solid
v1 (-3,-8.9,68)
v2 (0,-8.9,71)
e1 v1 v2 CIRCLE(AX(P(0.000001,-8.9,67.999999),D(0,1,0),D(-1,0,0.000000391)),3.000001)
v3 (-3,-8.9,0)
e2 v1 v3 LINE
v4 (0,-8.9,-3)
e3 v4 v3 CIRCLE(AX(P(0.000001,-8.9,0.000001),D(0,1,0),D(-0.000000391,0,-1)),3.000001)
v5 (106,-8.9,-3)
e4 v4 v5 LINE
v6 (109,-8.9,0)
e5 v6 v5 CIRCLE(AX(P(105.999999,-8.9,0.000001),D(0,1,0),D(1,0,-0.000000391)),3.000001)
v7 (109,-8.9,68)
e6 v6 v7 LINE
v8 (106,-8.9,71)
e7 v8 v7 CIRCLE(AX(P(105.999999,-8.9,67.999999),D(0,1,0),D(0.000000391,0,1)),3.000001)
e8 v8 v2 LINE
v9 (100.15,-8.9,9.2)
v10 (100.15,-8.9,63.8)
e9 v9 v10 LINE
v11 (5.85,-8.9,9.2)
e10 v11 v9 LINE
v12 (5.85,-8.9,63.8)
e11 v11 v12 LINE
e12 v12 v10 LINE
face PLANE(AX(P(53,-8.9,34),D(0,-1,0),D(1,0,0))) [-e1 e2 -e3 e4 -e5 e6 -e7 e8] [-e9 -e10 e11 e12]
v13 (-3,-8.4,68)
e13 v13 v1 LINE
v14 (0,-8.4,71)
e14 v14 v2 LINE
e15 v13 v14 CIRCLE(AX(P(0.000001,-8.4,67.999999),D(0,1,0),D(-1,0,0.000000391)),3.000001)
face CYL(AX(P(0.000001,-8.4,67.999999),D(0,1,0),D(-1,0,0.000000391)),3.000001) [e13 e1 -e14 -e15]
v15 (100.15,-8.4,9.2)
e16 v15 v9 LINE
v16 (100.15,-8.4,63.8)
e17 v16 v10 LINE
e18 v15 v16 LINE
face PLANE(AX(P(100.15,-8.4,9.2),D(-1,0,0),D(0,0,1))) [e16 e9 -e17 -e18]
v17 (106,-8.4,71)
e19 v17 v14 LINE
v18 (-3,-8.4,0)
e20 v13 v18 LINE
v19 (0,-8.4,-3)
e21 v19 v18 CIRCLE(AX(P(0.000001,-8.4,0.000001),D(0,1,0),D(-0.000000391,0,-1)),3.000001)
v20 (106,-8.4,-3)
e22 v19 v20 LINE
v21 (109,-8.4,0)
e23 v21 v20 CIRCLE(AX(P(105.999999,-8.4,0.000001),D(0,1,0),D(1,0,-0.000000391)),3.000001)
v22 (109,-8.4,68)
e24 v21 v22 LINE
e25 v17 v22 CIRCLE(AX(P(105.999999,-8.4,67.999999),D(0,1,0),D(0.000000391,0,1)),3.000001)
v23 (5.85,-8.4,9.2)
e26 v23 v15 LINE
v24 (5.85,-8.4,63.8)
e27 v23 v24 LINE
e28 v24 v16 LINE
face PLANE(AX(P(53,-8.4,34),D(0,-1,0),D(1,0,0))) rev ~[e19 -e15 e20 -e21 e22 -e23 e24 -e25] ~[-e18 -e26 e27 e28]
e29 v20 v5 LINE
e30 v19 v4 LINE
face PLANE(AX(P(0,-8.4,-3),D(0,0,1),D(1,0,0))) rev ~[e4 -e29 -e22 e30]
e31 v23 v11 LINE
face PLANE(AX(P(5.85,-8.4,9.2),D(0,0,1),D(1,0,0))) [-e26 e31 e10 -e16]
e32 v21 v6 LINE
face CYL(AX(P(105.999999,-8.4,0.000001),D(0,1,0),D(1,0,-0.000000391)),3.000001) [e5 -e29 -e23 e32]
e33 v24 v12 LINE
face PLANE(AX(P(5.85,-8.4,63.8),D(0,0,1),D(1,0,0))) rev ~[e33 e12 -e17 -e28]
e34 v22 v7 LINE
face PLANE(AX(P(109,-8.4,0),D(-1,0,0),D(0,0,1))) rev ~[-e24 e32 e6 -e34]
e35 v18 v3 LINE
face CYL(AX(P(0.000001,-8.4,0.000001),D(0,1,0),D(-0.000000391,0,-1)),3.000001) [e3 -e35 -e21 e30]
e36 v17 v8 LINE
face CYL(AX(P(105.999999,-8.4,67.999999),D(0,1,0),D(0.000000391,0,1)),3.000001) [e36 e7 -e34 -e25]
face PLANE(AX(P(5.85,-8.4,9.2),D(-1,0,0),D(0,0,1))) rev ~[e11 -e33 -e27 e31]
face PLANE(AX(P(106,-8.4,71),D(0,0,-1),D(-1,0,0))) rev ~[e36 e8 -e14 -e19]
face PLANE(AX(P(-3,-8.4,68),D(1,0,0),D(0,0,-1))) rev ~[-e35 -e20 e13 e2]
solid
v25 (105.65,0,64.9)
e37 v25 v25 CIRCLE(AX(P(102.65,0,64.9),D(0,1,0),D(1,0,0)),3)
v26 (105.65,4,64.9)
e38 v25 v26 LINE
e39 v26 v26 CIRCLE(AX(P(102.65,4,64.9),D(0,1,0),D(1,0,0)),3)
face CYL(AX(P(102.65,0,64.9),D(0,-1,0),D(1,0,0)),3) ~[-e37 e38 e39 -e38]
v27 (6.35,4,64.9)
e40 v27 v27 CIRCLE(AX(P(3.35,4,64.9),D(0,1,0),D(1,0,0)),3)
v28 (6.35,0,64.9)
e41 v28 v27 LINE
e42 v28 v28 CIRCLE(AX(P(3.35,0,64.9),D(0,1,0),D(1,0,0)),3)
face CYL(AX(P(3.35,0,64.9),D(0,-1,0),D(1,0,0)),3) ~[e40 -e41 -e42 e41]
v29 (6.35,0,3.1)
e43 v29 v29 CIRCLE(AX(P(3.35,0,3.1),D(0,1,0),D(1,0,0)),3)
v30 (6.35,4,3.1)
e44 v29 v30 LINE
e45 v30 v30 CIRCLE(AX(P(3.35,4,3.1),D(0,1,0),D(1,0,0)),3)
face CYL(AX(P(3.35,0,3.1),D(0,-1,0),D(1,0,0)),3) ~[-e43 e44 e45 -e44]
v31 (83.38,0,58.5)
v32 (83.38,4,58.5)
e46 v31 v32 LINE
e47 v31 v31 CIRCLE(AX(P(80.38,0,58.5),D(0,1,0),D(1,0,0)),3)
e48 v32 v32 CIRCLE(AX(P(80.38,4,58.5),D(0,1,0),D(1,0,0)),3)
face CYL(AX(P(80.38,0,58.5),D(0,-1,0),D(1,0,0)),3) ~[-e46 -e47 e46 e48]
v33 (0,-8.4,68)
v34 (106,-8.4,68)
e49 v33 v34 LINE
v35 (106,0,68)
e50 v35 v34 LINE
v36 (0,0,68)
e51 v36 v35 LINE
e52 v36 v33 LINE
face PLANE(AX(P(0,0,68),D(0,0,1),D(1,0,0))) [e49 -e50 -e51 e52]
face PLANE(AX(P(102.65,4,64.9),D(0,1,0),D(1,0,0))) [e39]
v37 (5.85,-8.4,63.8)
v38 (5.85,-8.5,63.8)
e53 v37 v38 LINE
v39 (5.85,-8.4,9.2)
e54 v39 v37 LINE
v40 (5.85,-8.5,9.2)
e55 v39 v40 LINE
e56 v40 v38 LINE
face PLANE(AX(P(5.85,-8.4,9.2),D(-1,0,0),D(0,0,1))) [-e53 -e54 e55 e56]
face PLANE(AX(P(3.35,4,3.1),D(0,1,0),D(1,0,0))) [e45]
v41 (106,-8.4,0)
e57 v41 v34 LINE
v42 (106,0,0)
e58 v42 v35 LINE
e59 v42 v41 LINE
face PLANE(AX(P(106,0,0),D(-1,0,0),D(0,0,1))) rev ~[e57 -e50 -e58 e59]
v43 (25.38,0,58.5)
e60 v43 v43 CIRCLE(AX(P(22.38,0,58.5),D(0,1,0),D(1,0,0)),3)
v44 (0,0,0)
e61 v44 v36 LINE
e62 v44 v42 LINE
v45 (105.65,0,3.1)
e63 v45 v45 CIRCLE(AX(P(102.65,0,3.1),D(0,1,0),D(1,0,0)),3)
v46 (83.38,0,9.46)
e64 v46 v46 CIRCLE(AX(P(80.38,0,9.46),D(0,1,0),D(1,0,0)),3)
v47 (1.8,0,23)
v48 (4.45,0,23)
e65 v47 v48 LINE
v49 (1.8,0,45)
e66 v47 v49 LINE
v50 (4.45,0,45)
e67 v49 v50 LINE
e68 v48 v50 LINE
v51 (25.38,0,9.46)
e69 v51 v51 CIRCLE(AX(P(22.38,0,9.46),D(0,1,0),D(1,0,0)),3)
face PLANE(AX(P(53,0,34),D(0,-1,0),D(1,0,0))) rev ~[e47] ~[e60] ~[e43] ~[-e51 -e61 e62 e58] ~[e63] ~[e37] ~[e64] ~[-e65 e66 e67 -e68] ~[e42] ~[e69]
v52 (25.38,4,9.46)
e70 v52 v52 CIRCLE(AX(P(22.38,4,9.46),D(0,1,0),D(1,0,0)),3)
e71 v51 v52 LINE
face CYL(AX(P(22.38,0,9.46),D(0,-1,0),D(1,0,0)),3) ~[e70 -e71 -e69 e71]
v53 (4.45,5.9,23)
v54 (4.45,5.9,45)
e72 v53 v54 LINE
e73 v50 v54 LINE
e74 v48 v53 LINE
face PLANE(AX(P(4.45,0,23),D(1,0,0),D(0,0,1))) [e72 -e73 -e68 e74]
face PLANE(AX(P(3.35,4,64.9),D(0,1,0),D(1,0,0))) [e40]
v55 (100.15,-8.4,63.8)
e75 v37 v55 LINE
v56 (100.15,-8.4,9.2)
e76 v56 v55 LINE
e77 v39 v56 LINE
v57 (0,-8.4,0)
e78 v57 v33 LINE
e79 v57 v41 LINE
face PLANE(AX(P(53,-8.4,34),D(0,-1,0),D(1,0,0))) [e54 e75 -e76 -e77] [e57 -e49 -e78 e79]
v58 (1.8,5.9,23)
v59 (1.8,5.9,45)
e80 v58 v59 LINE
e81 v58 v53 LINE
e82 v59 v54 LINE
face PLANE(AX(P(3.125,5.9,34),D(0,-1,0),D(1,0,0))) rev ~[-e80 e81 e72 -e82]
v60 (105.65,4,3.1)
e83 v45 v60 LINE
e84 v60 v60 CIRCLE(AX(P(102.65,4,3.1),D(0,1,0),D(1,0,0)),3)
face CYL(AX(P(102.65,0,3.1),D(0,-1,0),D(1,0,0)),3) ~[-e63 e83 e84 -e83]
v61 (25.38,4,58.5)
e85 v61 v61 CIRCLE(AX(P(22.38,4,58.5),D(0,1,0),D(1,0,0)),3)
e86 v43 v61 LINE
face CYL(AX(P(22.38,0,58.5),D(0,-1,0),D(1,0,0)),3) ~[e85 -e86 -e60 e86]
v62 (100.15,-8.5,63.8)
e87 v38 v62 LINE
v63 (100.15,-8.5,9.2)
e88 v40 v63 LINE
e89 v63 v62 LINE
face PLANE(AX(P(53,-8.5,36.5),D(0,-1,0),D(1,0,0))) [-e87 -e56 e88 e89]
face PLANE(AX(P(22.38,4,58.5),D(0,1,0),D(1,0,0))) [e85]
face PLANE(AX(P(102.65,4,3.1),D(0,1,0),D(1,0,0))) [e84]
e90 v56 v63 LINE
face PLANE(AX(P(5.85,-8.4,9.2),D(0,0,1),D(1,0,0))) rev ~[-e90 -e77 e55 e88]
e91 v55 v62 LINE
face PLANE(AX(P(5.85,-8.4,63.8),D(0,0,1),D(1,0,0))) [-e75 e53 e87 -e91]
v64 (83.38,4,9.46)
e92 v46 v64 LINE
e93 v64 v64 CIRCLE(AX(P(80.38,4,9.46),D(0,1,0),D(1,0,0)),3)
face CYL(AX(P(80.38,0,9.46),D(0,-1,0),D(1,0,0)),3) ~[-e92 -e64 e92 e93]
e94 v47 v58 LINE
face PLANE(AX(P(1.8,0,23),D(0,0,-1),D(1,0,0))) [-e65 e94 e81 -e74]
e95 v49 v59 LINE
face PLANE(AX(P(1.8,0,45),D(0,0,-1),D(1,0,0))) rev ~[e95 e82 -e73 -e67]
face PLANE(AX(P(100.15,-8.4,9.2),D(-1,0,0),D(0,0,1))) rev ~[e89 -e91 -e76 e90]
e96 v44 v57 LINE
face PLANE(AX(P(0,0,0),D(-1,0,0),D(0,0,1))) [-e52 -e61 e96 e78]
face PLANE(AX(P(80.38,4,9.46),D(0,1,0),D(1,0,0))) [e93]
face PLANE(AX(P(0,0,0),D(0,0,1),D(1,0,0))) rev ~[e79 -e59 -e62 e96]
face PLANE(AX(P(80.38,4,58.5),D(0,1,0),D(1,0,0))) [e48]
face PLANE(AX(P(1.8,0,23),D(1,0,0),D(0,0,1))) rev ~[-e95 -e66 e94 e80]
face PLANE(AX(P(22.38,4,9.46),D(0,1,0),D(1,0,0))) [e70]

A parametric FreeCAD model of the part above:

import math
import FreeCAD as App
import Part
import Sketcher
Q = App.Units.Quantity


def add_polygon(sketch, points):
    """Adds a closed chain of lines whose ends are joined by coincident constraints."""
    first, n = sketch.GeometryCount, len(points)
    for a, b in zip(points, points[1:] + points[:1]):
        sketch.addGeometry(Part.LineSegment(App.Vector(*a, 0), App.Vector(*b, 0)), False)
    for i in range(n):
        sketch.addConstraint(Sketcher.Constraint("Coincident", first + i, 2, first + (i + 1) % n, 1))

doc = App.newDocument("Part")
body = doc.addObject("PartDesign::Body", "Body")

# Sketch on XZ plane
sketch1 = body.newObject("Sketcher::SketchObject", "Sketch")
sketch1.AttachmentSupport = (doc.getObject("XZ_Plane"), [""])
sketch1.MapMode = "FlatFace"
add_polygon(sketch1, [(0, 68), (0, 0), (106, 0), (106, 68)])  # lines 0-3
sketch1.addConstraint(Sketcher.Constraint("Vertical", 0))
sketch1.addConstraint(Sketcher.Constraint("Horizontal", 1))
sketch1.addConstraint(Sketcher.Constraint("Vertical", 2))
sketch1.addConstraint(Sketcher.Constraint("Horizontal", 3))
sketch1.addConstraint(Sketcher.Constraint("Coincident", 0, 2, -1, 1))
sketch1.addConstraint(Sketcher.Constraint("DistanceX", 1, 1, 1, 2, Q("106 mm")))
sketch1.addConstraint(Sketcher.Constraint("DistanceY", 0, 2, 0, 1, Q("68 mm")))
pad1 = body.newObject("PartDesign::Pad", "Pad")
pad1.Profile = sketch1
pad1.Length = 8.4

# Sketch on XZ plane
sketch2 = body.newObject("Sketcher::SketchObject", "Sketch001")
sketch2.AttachmentSupport = (doc.getObject("XZ_Plane"), [""])
sketch2.MapMode = "FlatFace"
sketch2.addGeometry(Part.Circle(App.Vector(3.4, 64.9, 0), App.Vector(0, 0, 1), 3), False)
sketch2.addGeometry(Part.Circle(App.Vector(102.7, 64.9, 0), App.Vector(0, 0, 1), 3), False)
sketch2.addGeometry(Part.Circle(App.Vector(102.7, 3.1, 0), App.Vector(0, 0, 1), 3), False)
sketch2.addGeometry(Part.Circle(App.Vector(3.4, 3.1, 0), App.Vector(0, 0, 1), 3), False)
sketch2.addGeometry(Part.Circle(App.Vector(80.4, 9.5, 0), App.Vector(0, 0, 1), 3), False)
sketch2.addGeometry(Part.Circle(App.Vector(80.4, 58.5, 0), App.Vector(0, 0, 1), 3), False)
sketch2.addGeometry(Part.Circle(App.Vector(22.4, 9.5, 0), App.Vector(0, 0, 1), 3), False)
sketch2.addGeometry(Part.Circle(App.Vector(22.4, 58.5, 0), App.Vector(0, 0, 1), 3), False)
sketch2.addConstraint(Sketcher.Constraint("Equal", 0, 1))
sketch2.addConstraint(Sketcher.Constraint("Equal", 1, 2))
sketch2.addConstraint(Sketcher.Constraint("Equal", 2, 3))
sketch2.addConstraint(Sketcher.Constraint("Equal", 3, 4))
sketch2.addConstraint(Sketcher.Constraint("Equal", 4, 5))
sketch2.addConstraint(Sketcher.Constraint("Equal", 5, 6))
sketch2.addConstraint(Sketcher.Constraint("Equal", 6, 7))
sketch2.addConstraint(Sketcher.Constraint("Horizontal", 0, 3, 1, 3))
sketch2.addConstraint(Sketcher.Constraint("Horizontal", 2, 3, 3, 3))
sketch2.addConstraint(Sketcher.Constraint("Horizontal", 4, 3, 6, 3))
sketch2.addConstraint(Sketcher.Constraint("Horizontal", 5, 3, 7, 3))
sketch2.addConstraint(Sketcher.Constraint("Vertical", 1, 3, 2, 3))
sketch2.addConstraint(Sketcher.Constraint("Vertical", 0, 3, 3, 3))
sketch2.addConstraint(Sketcher.Constraint("Vertical", 4, 3, 5, 3))
sketch2.addConstraint(Sketcher.Constraint("Vertical", 6, 3, 7, 3))
sketch2.addConstraint(Sketcher.Constraint("Diameter", 0, Q("6 mm")))
sketch2.addConstraint(Sketcher.Constraint("DistanceX", 6, 3, 4, 3, Q("58 mm")))
sketch2.addConstraint(Sketcher.Constraint("DistanceY", -1, 1, 0, 3, Q("64.9 mm")))
sketch2.addConstraint(Sketcher.Constraint("DistanceY", -1, 1, 2, 3, Q("3.1 mm")))
sketch2.addConstraint(Sketcher.Constraint("DistanceY", -1, 1, 5, 3, Q("58.5 mm")))
sketch2.addConstraint(Sketcher.Constraint("DistanceX", 0, 3, 1, 3, Q("99.3 mm")))
sketch2.addConstraint(Sketcher.Constraint("DistanceX", -1, 1, 0, 3, Q("3.35 mm")))
sketch2.addConstraint(Sketcher.Constraint("DistanceX", -1, 1, 4, 3, Q("80.38 mm")))
sketch2.addConstraint(Sketcher.Constraint("DistanceY", -1, 1, 4, 3, Q("9.46 mm")))
pad2 = body.newObject("PartDesign::Pad", "Pad001")
pad2.Profile = sketch2
pad2.Length = 4
pad2.Reversed = True

# Sketch on XZ plane
sketch3 = body.newObject("Sketcher::SketchObject", "Sketch002")
sketch3.AttachmentSupport = (doc.getObject("XZ_Plane"), [""])
sketch3.MapMode = "FlatFace"
add_polygon(sketch3, [(1.8, 45), (1.8, 23), (4.5, 23), (4.5, 45)])  # lines 0-3
sketch3.addConstraint(Sketcher.Constraint("Vertical", 0))
sketch3.addConstraint(Sketcher.Constraint("Horizontal", 1))
sketch3.addConstraint(Sketcher.Constraint("Vertical", 2))
sketch3.addConstraint(Sketcher.Constraint("Horizontal", 3))
sketch3.addConstraint(Sketcher.Constraint("DistanceY", 0, 2, 0, 1, Q("22 mm")))
sketch3.addConstraint(Sketcher.Constraint("DistanceY", -1, 1, 0, 2, Q("23 mm")))
sketch3.addConstraint(Sketcher.Constraint("DistanceX", 1, 1, 1, 2, Q("2.65 mm")))
sketch3.addConstraint(Sketcher.Constraint("DistanceX", -1, 1, 0, 2, Q("1.8 mm")))
pad3 = body.newObject("PartDesign::Pad", "Pad002")
pad3.Profile = sketch3
pad3.Length = 5.9
pad3.Reversed = True

# Sketch on XZ plane
sketch4 = body.newObject("Sketcher::SketchObject", "Sketch003")
sketch4.AttachmentSupport = (doc.getObject("XZ_Plane"), [""])
sketch4.MapMode = "FlatFace"
sketch4.AttachmentOffset = App.Placement(App.Vector(0, 0, 8.4), App.Rotation())
add_polygon(sketch4, [(6, 64), (6, 9), (100, 9), (100, 64)])  # lines 0-3
sketch4.addConstraint(Sketcher.Constraint("Vertical", 0))
sketch4.addConstraint(Sketcher.Constraint("Horizontal", 1))
sketch4.addConstraint(Sketcher.Constraint("Vertical", 2))
sketch4.addConstraint(Sketcher.Constraint("Horizontal", 3))
sketch4.addConstraint(Sketcher.Constraint("DistanceX", 1, 1, 1, 2, Q("94.3 mm")))
sketch4.addConstraint(Sketcher.Constraint("DistanceY", 0, 2, 0, 1, Q("54.6 mm")))
sketch4.addConstraint(Sketcher.Constraint("DistanceY", -1, 1, 0, 2, Q("9.2 mm")))
sketch4.addConstraint(Sketcher.Constraint("DistanceX", -1, 1, 0, 2, Q("5.85 mm")))
pad4 = body.newObject("PartDesign::Pad", "Pad003")
pad4.Profile = sketch4
pad4.Length = 0.1
body2 = doc.addObject("PartDesign::Body", "Body001")

# Sketch on XZ plane
sketch5 = body2.newObject("Sketcher::SketchObject", "Sketch004")
sketch5.AttachmentSupport = (doc.getObject("XZ_Plane001"), [""])
sketch5.MapMode = "FlatFace"
sketch5.AttachmentOffset = App.Placement(App.Vector(0, 0, 8.4), App.Rotation())
sketch5.addGeometry(Part.LineSegment(App.Vector(-3, 68, 0), App.Vector(-3, 0, 0)), False)  # 0
sketch5.addGeometry(Part.ArcOfCircle(Part.Circle(App.Vector(0, 0, 0), App.Vector(0, 0, 1), 3), math.radians(-180), math.radians(-90)), False)  # 1
sketch5.addGeometry(Part.LineSegment(App.Vector(0, -3, 0), App.Vector(106, -3, 0)), False)  # 2
sketch5.addGeometry(Part.ArcOfCircle(Part.Circle(App.Vector(106, 0, 0), App.Vector(0, 0, 1), 3), math.radians(-90), math.radians(0)), False)  # 3
sketch5.addGeometry(Part.LineSegment(App.Vector(109, 0, 0), App.Vector(109, 68, 0)), False)  # 4
sketch5.addGeometry(Part.ArcOfCircle(Part.Circle(App.Vector(106, 68, 0), App.Vector(0, 0, 1), 3), math.radians(0), math.radians(90)), False)  # 5
sketch5.addGeometry(Part.LineSegment(App.Vector(106, 71, 0), App.Vector(0, 71, 0)), False)  # 6
sketch5.addGeometry(Part.ArcOfCircle(Part.Circle(App.Vector(0, 68, 0), App.Vector(0, 0, 1), 3), math.radians(90), math.radians(180)), False)  # 7
add_polygon(sketch5, [(100.2, 9.2), (5.8, 9.2), (5.8, 63.8), (100.2, 63.8)])  # lines 8-11
sketch5.addConstraint(Sketcher.Constraint("Tangent", 0, 2, 1, 1))
sketch5.addConstraint(Sketcher.Constraint("Tangent", 1, 2, 2, 1))
sketch5.addConstraint(Sketcher.Constraint("Tangent", 2, 2, 3, 1))
sketch5.addConstraint(Sketcher.Constraint("Tangent", 3, 2, 4, 1))
sketch5.addConstraint(Sketcher.Constraint("Tangent", 4, 2, 5, 1))
sketch5.addConstraint(Sketcher.Constraint("Tangent", 5, 2, 6, 1))
sketch5.addConstraint(Sketcher.Constraint("Tangent", 6, 2, 7, 1))
sketch5.addConstraint(Sketcher.Constraint("Tangent", 7, 2, 0, 1))
sketch5.addConstraint(Sketcher.Constraint("Vertical", 0))
sketch5.addConstraint(Sketcher.Constraint("Horizontal", 2))
sketch5.addConstraint(Sketcher.Constraint("Vertical", 4))
sketch5.addConstraint(Sketcher.Constraint("Horizontal", 6))
sketch5.addConstraint(Sketcher.Constraint("Horizontal", 8))
sketch5.addConstraint(Sketcher.Constraint("Vertical", 9))
sketch5.addConstraint(Sketcher.Constraint("Horizontal", 10))
sketch5.addConstraint(Sketcher.Constraint("Vertical", 11))
sketch5.addConstraint(Sketcher.Constraint("Coincident", 1, 3, -1, 1))
sketch5.addConstraint(Sketcher.Constraint("Equal", 1, 3))
sketch5.addConstraint(Sketcher.Constraint("Equal", 3, 5))
sketch5.addConstraint(Sketcher.Constraint("Equal", 5, 7))
sketch5.addConstraint(Sketcher.Constraint("Radius", 1, Q("3.000001 mm")))
sketch5.addConstraint(Sketcher.Constraint("DistanceX", 2, 1, 2, 2, Q("106 mm")))
sketch5.addConstraint(Sketcher.Constraint("DistanceY", 0, 2, 0, 1, Q("68 mm")))
sketch5.addConstraint(Sketcher.Constraint("DistanceX", 8, 2, 8, 1, Q("94.3 mm")))
sketch5.addConstraint(Sketcher.Constraint("DistanceY", 9, 1, 9, 2, Q("54.6 mm")))
sketch5.addConstraint(Sketcher.Constraint("DistanceY", -1, 1, 8, 2, Q("9.2 mm")))
sketch5.addConstraint(Sketcher.Constraint("DistanceX", -1, 1, 8, 2, Q("5.85 mm")))
pad5 = body2.newObject("PartDesign::Pad", "Pad004")
pad5.Profile = sketch5
pad5.Length = 0.5

doc.recompute()
